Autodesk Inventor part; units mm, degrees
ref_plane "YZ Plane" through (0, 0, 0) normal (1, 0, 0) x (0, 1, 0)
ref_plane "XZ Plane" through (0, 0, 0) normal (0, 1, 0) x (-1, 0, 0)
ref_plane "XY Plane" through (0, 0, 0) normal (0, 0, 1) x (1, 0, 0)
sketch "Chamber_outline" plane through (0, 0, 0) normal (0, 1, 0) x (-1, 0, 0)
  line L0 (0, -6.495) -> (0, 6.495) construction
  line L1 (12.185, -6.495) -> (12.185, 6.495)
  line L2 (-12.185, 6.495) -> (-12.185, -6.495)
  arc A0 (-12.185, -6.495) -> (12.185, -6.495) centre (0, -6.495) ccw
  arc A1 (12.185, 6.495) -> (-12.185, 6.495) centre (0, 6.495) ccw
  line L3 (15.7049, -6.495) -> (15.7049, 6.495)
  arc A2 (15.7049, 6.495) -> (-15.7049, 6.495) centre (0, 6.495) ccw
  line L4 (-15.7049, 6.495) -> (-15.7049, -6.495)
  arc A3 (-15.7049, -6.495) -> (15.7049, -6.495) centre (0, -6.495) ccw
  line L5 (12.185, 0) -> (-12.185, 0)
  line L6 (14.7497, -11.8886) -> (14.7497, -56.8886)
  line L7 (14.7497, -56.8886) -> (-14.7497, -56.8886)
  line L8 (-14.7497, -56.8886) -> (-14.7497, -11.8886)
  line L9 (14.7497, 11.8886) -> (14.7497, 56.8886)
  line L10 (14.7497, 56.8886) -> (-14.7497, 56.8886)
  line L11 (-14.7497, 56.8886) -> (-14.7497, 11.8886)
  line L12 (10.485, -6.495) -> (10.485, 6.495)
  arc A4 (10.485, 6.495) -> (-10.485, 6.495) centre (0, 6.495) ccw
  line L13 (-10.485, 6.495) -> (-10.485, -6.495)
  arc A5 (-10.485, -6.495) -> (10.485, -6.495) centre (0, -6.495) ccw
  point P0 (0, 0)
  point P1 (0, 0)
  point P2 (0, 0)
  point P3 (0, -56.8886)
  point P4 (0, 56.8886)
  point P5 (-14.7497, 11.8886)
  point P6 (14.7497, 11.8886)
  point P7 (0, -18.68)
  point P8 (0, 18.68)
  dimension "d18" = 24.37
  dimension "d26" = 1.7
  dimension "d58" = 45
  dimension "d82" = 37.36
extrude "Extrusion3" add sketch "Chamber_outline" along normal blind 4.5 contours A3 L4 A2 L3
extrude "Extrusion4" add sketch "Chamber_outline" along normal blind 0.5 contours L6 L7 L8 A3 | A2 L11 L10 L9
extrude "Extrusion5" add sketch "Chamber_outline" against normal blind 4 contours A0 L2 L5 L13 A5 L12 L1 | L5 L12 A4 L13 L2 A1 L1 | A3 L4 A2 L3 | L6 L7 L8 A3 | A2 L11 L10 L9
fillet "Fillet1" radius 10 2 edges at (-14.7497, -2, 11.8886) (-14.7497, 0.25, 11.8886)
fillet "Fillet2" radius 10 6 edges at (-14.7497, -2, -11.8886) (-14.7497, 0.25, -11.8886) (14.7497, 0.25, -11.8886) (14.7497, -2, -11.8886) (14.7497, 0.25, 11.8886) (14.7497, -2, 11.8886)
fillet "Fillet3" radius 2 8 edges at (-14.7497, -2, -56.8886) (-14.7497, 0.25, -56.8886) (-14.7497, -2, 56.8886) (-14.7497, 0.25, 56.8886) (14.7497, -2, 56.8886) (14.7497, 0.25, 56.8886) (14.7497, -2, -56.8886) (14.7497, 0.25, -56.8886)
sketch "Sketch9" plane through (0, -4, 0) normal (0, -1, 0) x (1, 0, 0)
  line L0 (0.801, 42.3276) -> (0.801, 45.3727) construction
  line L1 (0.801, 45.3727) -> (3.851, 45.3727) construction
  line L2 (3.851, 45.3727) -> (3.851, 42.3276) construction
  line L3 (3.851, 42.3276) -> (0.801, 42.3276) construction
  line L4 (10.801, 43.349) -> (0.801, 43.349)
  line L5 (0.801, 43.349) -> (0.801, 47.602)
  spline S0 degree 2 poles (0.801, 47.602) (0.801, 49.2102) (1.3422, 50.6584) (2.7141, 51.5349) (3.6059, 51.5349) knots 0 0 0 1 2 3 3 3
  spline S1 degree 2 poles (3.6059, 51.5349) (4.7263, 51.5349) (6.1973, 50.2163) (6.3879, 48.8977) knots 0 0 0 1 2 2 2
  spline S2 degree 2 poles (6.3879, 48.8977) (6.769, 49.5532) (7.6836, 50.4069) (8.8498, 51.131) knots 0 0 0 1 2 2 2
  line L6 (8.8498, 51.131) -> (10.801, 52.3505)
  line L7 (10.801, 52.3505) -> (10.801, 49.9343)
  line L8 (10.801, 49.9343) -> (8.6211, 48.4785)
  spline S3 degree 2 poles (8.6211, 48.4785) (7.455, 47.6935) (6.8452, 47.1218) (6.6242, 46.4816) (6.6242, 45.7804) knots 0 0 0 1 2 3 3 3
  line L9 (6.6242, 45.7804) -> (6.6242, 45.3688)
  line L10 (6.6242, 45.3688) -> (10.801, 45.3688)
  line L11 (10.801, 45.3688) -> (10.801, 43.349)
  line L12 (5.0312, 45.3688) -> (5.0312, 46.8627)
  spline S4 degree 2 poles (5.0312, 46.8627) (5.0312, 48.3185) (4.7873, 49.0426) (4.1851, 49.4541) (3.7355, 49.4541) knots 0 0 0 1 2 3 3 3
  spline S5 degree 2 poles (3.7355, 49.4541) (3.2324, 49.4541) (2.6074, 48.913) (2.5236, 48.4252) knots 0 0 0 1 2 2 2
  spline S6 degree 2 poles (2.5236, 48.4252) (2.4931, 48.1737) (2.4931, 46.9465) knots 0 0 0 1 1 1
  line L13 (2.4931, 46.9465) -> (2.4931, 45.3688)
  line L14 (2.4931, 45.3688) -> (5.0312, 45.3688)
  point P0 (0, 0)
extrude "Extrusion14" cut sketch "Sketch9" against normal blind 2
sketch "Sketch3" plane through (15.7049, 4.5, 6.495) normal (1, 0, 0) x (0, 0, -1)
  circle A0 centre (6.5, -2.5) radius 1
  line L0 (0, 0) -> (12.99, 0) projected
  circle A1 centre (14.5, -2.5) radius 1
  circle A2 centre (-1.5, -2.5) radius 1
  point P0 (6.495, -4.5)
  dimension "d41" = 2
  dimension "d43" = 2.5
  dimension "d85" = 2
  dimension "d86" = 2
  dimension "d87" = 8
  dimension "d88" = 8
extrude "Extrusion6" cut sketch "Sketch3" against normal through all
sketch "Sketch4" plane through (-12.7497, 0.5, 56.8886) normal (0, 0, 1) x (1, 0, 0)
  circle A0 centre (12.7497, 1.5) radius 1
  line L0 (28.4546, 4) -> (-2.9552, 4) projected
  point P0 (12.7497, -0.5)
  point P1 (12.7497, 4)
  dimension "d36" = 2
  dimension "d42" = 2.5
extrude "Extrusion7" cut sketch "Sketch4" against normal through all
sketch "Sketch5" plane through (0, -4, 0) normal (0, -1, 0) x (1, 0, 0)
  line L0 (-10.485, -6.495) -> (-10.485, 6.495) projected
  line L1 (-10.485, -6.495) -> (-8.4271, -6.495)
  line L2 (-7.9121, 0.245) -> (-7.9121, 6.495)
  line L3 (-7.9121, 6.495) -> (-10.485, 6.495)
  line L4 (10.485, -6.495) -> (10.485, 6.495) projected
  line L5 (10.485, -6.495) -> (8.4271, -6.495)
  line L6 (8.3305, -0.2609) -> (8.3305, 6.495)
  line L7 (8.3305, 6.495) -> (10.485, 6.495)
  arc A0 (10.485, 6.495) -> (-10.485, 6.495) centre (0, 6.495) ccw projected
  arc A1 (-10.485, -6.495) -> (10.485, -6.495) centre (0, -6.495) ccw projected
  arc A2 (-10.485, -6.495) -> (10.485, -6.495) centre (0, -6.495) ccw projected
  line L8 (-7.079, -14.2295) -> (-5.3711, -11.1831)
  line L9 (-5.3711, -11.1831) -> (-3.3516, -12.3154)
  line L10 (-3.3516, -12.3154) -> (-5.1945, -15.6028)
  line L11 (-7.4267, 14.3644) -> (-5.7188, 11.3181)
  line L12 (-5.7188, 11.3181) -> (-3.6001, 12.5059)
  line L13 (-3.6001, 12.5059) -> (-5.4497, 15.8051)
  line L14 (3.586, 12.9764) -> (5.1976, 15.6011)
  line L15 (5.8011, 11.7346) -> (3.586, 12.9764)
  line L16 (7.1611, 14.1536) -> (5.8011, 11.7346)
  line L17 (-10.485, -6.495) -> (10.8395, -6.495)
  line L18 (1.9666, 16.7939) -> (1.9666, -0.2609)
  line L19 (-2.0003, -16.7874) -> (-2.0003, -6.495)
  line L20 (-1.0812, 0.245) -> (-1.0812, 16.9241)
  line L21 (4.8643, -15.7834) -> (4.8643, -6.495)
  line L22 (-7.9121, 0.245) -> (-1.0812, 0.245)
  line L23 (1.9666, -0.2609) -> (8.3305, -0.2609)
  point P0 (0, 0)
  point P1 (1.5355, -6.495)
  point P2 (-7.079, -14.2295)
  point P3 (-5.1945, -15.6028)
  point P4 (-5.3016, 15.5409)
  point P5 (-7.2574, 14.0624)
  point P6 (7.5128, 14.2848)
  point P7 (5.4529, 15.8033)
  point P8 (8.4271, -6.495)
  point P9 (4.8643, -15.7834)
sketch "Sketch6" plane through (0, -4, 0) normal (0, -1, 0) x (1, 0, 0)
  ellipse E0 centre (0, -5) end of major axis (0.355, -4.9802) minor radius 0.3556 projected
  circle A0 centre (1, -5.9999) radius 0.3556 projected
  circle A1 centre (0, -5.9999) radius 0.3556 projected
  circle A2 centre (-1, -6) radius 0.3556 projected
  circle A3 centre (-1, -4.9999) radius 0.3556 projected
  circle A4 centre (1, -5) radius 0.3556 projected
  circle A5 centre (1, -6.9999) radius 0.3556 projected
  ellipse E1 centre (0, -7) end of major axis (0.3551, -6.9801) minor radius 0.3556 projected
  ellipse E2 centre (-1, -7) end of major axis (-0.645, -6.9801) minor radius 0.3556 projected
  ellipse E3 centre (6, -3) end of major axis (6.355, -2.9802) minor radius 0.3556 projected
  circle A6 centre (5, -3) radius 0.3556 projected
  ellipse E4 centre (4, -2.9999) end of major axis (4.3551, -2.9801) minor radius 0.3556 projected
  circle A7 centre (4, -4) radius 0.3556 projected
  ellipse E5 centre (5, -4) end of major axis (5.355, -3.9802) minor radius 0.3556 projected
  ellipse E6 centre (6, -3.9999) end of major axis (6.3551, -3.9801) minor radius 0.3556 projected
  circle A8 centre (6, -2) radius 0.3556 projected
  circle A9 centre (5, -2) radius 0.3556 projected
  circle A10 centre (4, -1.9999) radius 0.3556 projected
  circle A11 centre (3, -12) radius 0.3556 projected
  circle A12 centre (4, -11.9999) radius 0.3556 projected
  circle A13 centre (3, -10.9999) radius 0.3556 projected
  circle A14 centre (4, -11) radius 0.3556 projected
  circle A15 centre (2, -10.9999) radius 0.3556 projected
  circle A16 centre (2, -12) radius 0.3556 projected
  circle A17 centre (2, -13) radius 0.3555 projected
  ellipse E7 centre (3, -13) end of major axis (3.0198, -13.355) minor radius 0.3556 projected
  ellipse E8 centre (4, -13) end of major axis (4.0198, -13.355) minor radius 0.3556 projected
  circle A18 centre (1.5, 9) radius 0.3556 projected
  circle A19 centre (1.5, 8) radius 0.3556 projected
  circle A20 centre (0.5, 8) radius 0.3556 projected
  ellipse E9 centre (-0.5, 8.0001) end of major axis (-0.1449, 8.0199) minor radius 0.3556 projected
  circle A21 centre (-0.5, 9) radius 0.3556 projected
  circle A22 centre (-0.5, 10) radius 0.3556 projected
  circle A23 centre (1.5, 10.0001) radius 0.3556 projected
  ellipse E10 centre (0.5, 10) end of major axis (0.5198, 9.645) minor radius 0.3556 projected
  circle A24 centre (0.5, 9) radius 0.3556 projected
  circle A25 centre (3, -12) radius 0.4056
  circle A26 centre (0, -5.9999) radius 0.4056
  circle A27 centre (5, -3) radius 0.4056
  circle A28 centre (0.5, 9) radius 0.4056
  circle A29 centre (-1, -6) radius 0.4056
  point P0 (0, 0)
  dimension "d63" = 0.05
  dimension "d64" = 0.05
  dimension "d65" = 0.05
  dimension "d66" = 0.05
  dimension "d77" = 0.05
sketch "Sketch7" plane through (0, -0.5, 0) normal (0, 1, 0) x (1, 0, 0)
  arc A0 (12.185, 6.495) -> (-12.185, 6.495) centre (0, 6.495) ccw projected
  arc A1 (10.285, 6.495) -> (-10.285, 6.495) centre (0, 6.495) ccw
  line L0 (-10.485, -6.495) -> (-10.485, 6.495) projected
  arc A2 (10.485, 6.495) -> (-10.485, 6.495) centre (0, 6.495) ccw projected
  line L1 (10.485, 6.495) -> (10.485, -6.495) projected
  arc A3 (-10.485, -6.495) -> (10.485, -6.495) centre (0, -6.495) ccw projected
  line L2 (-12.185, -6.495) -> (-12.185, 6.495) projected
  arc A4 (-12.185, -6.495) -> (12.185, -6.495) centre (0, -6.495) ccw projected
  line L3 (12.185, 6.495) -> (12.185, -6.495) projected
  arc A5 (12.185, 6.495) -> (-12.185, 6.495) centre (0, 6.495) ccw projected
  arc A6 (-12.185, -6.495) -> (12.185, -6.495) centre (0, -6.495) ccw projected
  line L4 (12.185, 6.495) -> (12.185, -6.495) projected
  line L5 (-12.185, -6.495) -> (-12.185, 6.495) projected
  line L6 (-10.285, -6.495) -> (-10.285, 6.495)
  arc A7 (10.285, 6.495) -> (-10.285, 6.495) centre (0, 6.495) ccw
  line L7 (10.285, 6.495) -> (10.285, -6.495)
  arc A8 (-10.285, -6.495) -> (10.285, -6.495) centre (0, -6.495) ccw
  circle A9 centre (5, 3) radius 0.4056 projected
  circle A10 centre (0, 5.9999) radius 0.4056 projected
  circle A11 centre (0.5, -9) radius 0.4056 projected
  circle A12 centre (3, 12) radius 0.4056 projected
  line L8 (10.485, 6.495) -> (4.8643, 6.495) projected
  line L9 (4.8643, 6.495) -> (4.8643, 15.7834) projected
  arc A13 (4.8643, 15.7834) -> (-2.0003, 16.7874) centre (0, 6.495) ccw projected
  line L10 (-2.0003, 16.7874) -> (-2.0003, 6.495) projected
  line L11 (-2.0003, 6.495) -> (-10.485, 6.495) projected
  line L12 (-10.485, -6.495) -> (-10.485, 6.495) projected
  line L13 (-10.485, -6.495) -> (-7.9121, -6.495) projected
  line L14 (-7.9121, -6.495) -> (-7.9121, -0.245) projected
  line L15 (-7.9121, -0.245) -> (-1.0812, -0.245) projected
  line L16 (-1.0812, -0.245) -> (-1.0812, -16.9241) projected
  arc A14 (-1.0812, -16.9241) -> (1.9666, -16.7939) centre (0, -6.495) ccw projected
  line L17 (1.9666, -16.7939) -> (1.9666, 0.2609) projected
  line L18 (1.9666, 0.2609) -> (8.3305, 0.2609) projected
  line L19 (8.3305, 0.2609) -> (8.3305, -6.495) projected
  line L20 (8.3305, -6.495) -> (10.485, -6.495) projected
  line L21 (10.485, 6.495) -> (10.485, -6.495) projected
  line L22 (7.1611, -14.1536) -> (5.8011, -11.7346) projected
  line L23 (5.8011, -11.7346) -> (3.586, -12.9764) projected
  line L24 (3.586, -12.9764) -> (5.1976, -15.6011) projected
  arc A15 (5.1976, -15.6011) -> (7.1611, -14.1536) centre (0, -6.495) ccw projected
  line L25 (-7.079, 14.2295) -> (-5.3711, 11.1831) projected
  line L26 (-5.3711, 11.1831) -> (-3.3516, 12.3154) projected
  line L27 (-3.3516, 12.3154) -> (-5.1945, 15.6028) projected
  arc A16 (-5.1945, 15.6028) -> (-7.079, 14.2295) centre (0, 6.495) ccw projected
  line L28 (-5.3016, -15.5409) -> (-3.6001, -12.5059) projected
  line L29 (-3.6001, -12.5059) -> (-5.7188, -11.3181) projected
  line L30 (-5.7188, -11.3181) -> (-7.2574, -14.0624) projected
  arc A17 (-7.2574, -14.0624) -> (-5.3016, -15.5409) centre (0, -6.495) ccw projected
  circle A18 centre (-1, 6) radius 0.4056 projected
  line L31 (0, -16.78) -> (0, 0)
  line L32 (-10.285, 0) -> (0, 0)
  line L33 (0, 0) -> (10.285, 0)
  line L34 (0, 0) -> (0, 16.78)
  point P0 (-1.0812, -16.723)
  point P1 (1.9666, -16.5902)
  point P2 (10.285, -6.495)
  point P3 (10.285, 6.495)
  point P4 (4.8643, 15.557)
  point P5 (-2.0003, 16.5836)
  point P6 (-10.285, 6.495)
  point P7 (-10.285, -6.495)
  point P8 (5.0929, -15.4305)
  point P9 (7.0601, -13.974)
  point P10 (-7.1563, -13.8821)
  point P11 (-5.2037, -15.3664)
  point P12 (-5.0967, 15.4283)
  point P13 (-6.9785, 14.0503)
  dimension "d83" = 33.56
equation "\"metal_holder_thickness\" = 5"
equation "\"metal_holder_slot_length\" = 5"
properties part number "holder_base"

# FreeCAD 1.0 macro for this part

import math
import FreeCAD as App
import Part
import Sketcher

V = App.Vector
Q = App.Units.Quantity


def edges_at(feature, points):
    """Names of the edges that pass closest to the given points."""
    edges = feature.Shape.Edges
    near = lambda p: min(range(len(edges)), key=lambda i: edges[i].distToShape(Part.Vertex(*p))[0])
    return sorted({f"Edge{near(p) + 1}" for p in points})

doc = App.newDocument("Part")
params = doc.addObject("Spreadsheet::Sheet", "Params")
for row, (alias, value) in enumerate([
    ("sketch1_height", "12.99 mm"),
    ("pad1_length", "4.5 mm"),
    ("sketch2_height", "45 mm"),
    ("pad2_length", "0.5 mm"),
    ("sketch3_height", "45 mm"),
    ("sketch3_height2", "12.99 mm"),
    ("pad3_length", "4 mm"),
    ("fillet_radius", "10 mm"),
    ("fillet2_radius", "10 mm"),
    ("fillet3_radius", "2 mm"),
    ("sketch4_width", "10 mm"),
    ("pocket1_length", "2 mm"),
    ("sketch5_diameter", "2 mm"),
    ("sketch6_diameter", "2 mm"),
], start=1):
    params.set(f"A{row}", alias)
    params.set(f"B{row}", "=" + value)
    params.setAlias(f"B{row}", alias)

body = doc.addObject("PartDesign::Body", "Body")

sketch1 = body.newObject("Sketcher::SketchObject", "Sketch")
sketch1.AttachmentSupport = (doc.getObject("XZ_Plane"), [""])
sketch1.MapMode = "FlatFace"
sketch1.addGeometry(Part.ArcOfCircle(Part.Circle(V(0, -6.495, 0), V(0, 0, 1), 15.7049), math.radians(180), math.radians(360)), False)
sketch1.addGeometry(Part.LineSegment(V(-15.7049, -6.495, 0), V(-15.7049, 6.495, 0)), False)
sketch1.addGeometry(Part.ArcOfCircle(Part.Circle(V(0, 6.495, 0), V(0, 0, 1), 15.7049), math.radians(0), math.radians(180)), False)
sketch1.addGeometry(Part.LineSegment(V(15.7049, 6.495, 0), V(15.7049, -6.495, 0)), False)
sketch1.addGeometry(Part.LineSegment(V(-12.185, 6.495, 0), V(-12.185, -6.495, 0)), False)
sketch1.addGeometry(Part.ArcOfCircle(Part.Circle(V(0, -6.495, 0), V(0, 0, 1), 12.185), math.radians(180), math.radians(360)), False)
sketch1.addGeometry(Part.LineSegment(V(12.185, -6.495, 0), V(12.185, 6.495, 0)), False)
sketch1.addGeometry(Part.ArcOfCircle(Part.Circle(V(0, 6.495, 0), V(0, 0, 1), 12.185), math.radians(0), math.radians(180)), False)
sketch1.addConstraint(Sketcher.Constraint("Tangent", 0, 1, 1, 1))
sketch1.addConstraint(Sketcher.Constraint("Tangent", 1, 2, 2, 2))
sketch1.addConstraint(Sketcher.Constraint("Tangent", 2, 1, 3, 1))
sketch1.addConstraint(Sketcher.Constraint("Tangent", 3, 2, 0, 2))
sketch1.addConstraint(Sketcher.Constraint("Tangent", 4, 2, 5, 1))
sketch1.addConstraint(Sketcher.Constraint("Tangent", 5, 2, 6, 1))
sketch1.addConstraint(Sketcher.Constraint("Tangent", 6, 2, 7, 1))
sketch1.addConstraint(Sketcher.Constraint("Tangent", 7, 2, 4, 1))
sketch1.addConstraint(Sketcher.Constraint("Vertical", 1))
sketch1.addConstraint(Sketcher.Constraint("Vertical", 3))
sketch1.addConstraint(Sketcher.Constraint("Vertical", 4))
sketch1.addConstraint(Sketcher.Constraint("Vertical", 6))
sketch1.addConstraint(Sketcher.Constraint("Coincident", 5, 3, 0, 3))
sketch1.addConstraint(Sketcher.Constraint("Symmetric", 0, 3, 2, 3, -1, 1))
sketch1.addConstraint(Sketcher.Constraint("Horizontal", 7, 3, 1, 2))
sketch1.addConstraint(Sketcher.Constraint("Radius", 5, Q("12.185 mm")))
sketch1.addConstraint(Sketcher.Constraint("Radius", 0, Q("15.705 mm")))
sketch1.addConstraint(Sketcher.Constraint("DistanceY", 1, 1, 1, 2, Q("12.99 mm")))
sketch1.setExpression("Constraints[17]", "Params.sketch1_height")
pad1 = body.newObject("PartDesign::Pad", "Pad")
pad1.Profile = sketch1
pad1.setExpression("Length", "Params.pad1_length")
pad1.Reversed = True

sketch2 = body.newObject("Sketcher::SketchObject", "Sketch001")
sketch2.AttachmentSupport = (doc.getObject("XZ_Plane"), [""])
sketch2.MapMode = "FlatFace"
sketch2.addGeometry(Part.LineSegment(V(-14.7497, -56.8886, 0), V(-14.7497, -11.8886, 0)), False)
sketch2.addGeometry(Part.ArcOfCircle(Part.Circle(V(0, -6.495, 0), V(0, 0, 1), 15.7049), math.radians(-159.913785), math.radians(-20.086215)), False)
sketch2.addGeometry(Part.LineSegment(V(14.7497, -11.8886, 0), V(14.7497, -56.8886, 0)), False)
sketch2.addGeometry(Part.LineSegment(V(14.7497, -56.8886, 0), V(-14.7497, -56.8886, 0)), False)
sketch2.addGeometry(Part.ArcOfCircle(Part.Circle(V(0, 6.495, 0), V(0, 0, 1), 15.7049), math.radians(20.086215), math.radians(159.913785)), False)
sketch2.addGeometry(Part.LineSegment(V(-14.7497, 11.8886, 0), V(-14.7497, 56.8886, 0)), False)
sketch2.addGeometry(Part.LineSegment(V(-14.7497, 56.8886, 0), V(14.7497, 56.8886, 0)), False)
sketch2.addGeometry(Part.LineSegment(V(14.7497, 56.8886, 0), V(14.7497, 11.8886, 0)), False)
sketch2.addConstraint(Sketcher.Constraint("Coincident", 0, 2, 1, 1))
sketch2.addConstraint(Sketcher.Constraint("Coincident", 1, 2, 2, 1))
sketch2.addConstraint(Sketcher.Constraint("Coincident", 2, 2, 3, 1))
sketch2.addConstraint(Sketcher.Constraint("Coincident", 3, 2, 0, 1))
sketch2.addConstraint(Sketcher.Constraint("Coincident", 4, 2, 5, 1))
sketch2.addConstraint(Sketcher.Constraint("Coincident", 5, 2, 6, 1))
sketch2.addConstraint(Sketcher.Constraint("Coincident", 6, 2, 7, 1))
sketch2.addConstraint(Sketcher.Constraint("Coincident", 7, 2, 4, 1))
sketch2.addConstraint(Sketcher.Constraint("Vertical", 0))
sketch2.addConstraint(Sketcher.Constraint("Vertical", 2))
sketch2.addConstraint(Sketcher.Constraint("Horizontal", 3))
sketch2.addConstraint(Sketcher.Constraint("Vertical", 5))
sketch2.addConstraint(Sketcher.Constraint("Horizontal", 6))
sketch2.addConstraint(Sketcher.Constraint("Vertical", 7))
sketch2.addConstraint(Sketcher.Constraint("Equal", 1, 4))
sketch2.addConstraint(Sketcher.Constraint("Symmetric", 1, 3, 4, 3, -1, 1))
sketch2.addConstraint(Sketcher.Constraint("Symmetric", 2, 2, 5, 2, -1, 1))
sketch2.addConstraint(Sketcher.Constraint("Symmetric", 0, 2, 1, 2, -2))
sketch2.addConstraint(Sketcher.Constraint("Horizontal", 4, 2, 7, 2))
sketch2.addConstraint(Sketcher.Constraint("DistanceY", 0, 1, 0, 2, Q("45 mm")))
sketch2.addConstraint(Sketcher.Constraint("Radius", 1, Q("15.705 mm")))
sketch2.addConstraint(Sketcher.Constraint("DistanceY", 1, 3, 4, 3, Q("12.99 mm")))
sketch2.addConstraint(Sketcher.Constraint("DistanceX", 3, 2, 3, 1, Q("29.4994 mm")))
sketch2.setExpression("Constraints[19]", "Params.sketch2_height")
pad2 = body.newObject("PartDesign::Pad", "Pad001")
pad2.Profile = sketch2
pad2.setExpression("Length", "Params.pad2_length")
pad2.Reversed = True

sketch3 = body.newObject("Sketcher::SketchObject", "Sketch002")
sketch3.AttachmentSupport = (doc.getObject("XZ_Plane"), [""])
sketch3.MapMode = "FlatFace"
sketch3.addGeometry(Part.ArcOfCircle(Part.Circle(V(0, -6.495, 0), V(0, 0, 1), 15.7049), math.radians(180), math.radians(200.086215)), False)
sketch3.addGeometry(Part.LineSegment(V(-15.7049, -6.495, 0), V(-15.7049, 6.495, 0)), False)
sketch3.addGeometry(Part.ArcOfCircle(Part.Circle(V(0, 6.495, 0), V(0, 0, 1), 15.7049), math.radians(159.913785), math.radians(180)), False)
sketch3.addGeometry(Part.LineSegment(V(-14.7497, 11.8886, 0), V(-14.7497, 56.8886, 0)), False)
sketch3.addGeometry(Part.LineSegment(V(-14.7497, 56.8886, 0), V(14.7497, 56.8886, 0)), False)
sketch3.addGeometry(Part.LineSegment(V(14.7497, 56.8886, 0), V(14.7497, 11.8886, 0)), False)
sketch3.addGeometry(Part.ArcOfCircle(Part.Circle(V(0, 6.495, 0), V(0, 0, 1), 15.7049), math.radians(0), math.radians(20.086215)), False)
sketch3.addGeometry(Part.LineSegment(V(15.7049, 6.495, 0), V(15.7049, -6.495, 0)), False)
sketch3.addGeometry(Part.ArcOfCircle(Part.Circle(V(0, -6.495, 0), V(0, 0, 1), 15.7049), math.radians(-20.086215), math.radians(0)), False)
sketch3.addGeometry(Part.LineSegment(V(14.7497, -11.8886, 0), V(14.7497, -56.8886, 0)), False)
sketch3.addGeometry(Part.LineSegment(V(14.7497, -56.8886, 0), V(-14.7497, -56.8886, 0)), False)
sketch3.addGeometry(Part.LineSegment(V(-14.7497, -56.8886, 0), V(-14.7497, -11.8886, 0)), False)
sketch3.addGeometry(Part.LineSegment(V(10.485, -6.495, 0), V(10.485, 6.495, 0)), False)
sketch3.addGeometry(Part.ArcOfCircle(Part.Circle(V(0, 6.495, 0), V(0, 0, 1), 10.485), math.radians(0), math.radians(180)), False)
sketch3.addGeometry(Part.LineSegment(V(-10.485, 6.495, 0), V(-10.485, -6.495, 0)), False)
sketch3.addGeometry(Part.ArcOfCircle(Part.Circle(V(0, -6.495, 0), V(0, 0, 1), 10.485), math.radians(180), math.radians(360)), False)
sketch3.addConstraint(Sketcher.Constraint("Tangent", 0, 1, 1, 1))
sketch3.addConstraint(Sketcher.Constraint("Tangent", 1, 2, 2, 2))
sketch3.addConstraint(Sketcher.Constraint("Coincident", 2, 1, 3, 1))
sketch3.addConstraint(Sketcher.Constraint("Coincident", 3, 2, 4, 1))
sketch3.addConstraint(Sketcher.Constraint("Coincident", 4, 2, 5, 1))
sketch3.addConstraint(Sketcher.Constraint("Coincident", 5, 2, 6, 2))
sketch3.addConstraint(Sketcher.Constraint("Tangent", 6, 1, 7, 1))
sketch3.addConstraint(Sketcher.Constraint("Tangent", 7, 2, 8, 2))
sketch3.addConstraint(Sketcher.Constraint("Coincident", 8, 1, 9, 1))
sketch3.addConstraint(Sketcher.Constraint("Coincident", 9, 2, 10, 1))
sketch3.addConstraint(Sketcher.Constraint("Coincident", 10, 2, 11, 1))
sketch3.addConstraint(Sketcher.Constraint("Coincident", 11, 2, 0, 2))
sketch3.addConstraint(Sketcher.Constraint("Tangent", 12, 2, 13, 1))
sketch3.addConstraint(Sketcher.Constraint("Tangent", 13, 2, 14, 1))
sketch3.addConstraint(Sketcher.Constraint("Tangent", 14, 2, 15, 1))
sketch3.addConstraint(Sketcher.Constraint("Tangent", 15, 2, 12, 1))
sketch3.addConstraint(Sketcher.Constraint("Vertical", 1))
sketch3.addConstraint(Sketcher.Constraint("Vertical", 3))
sketch3.addConstraint(Sketcher.Constraint("Horizontal", 4))
sketch3.addConstraint(Sketcher.Constraint("Vertical", 5))
sketch3.addConstraint(Sketcher.Constraint("Vertical", 7))
sketch3.addConstraint(Sketcher.Constraint("Vertical", 9))
sketch3.addConstraint(Sketcher.Constraint("Horizontal", 10))
sketch3.addConstraint(Sketcher.Constraint("Vertical", 11))
sketch3.addConstraint(Sketcher.Constraint("Vertical", 12))
sketch3.addConstraint(Sketcher.Constraint("Vertical", 14))
sketch3.addConstraint(Sketcher.Constraint("Coincident", 6, 3, 2, 3))
sketch3.addConstraint(Sketcher.Constraint("Coincident", 8, 3, 0, 3))
sketch3.addConstraint(Sketcher.Constraint("Coincident", 13, 3, 2, 3))
sketch3.addConstraint(Sketcher.Constraint("Coincident", 15, 3, 0, 3))
sketch3.addConstraint(Sketcher.Constraint("Equal", 2, 6))
sketch3.addConstraint(Sketcher.Constraint("Symmetric", 0, 3, 2, 3, -1, 1))
sketch3.addConstraint(Sketcher.Constraint("Symmetric", 3, 2, 9, 2, -1, 1))
sketch3.addConstraint(Sketcher.Constraint("Horizontal", 2, 1, 5, 2))
sketch3.addConstraint(Sketcher.Constraint("Horizontal", 8, 1, 11, 2))
sketch3.addConstraint(Sketcher.Constraint("DistanceY", 3, 1, 3, 2, Q("45 mm")))
sketch3.addConstraint(Sketcher.Constraint("Radius", 0, Q("15.705 mm")))
sketch3.addConstraint(Sketcher.Constraint("Radius", 13, Q("10.485 mm")))
sketch3.addConstraint(Sketcher.Constraint("DistanceY", 1, 1, 1, 2, Q("12.99 mm")))
sketch3.addConstraint(Sketcher.Constraint("DistanceX", 4, 1, 4, 2, Q("29.4994 mm")))
sketch3.setExpression("Constraints[35]", "Params.sketch3_height")
sketch3.setExpression("Constraints[38]", "Params.sketch3_height2")
pad3 = body.newObject("PartDesign::Pad", "Pad002")
pad3.Profile = sketch3
pad3.setExpression("Length", "Params.pad3_length")
doc.recompute()

fillet = body.newObject("PartDesign::Fillet", "Fillet")
fillet.Base = (pad3, edges_at(pad3, [(-14.75, -2, 11.889), (-14.75, 0.25, 11.889)]))
fillet.setExpression("Radius", "Params.fillet_radius")
doc.recompute()

fillet2 = body.newObject("PartDesign::Fillet", "Fillet001")
fillet2.Base = (fillet, edges_at(fillet, [
    (-14.75, -2, -11.889),
    (-14.75, 0.25, -11.889),
    (14.75, 0.25, -11.889),
    (14.75, -2, -11.889),
    (14.75, 0.25, 11.889),
    (14.75, -2, 11.889),
]))
fillet2.setExpression("Radius", "Params.fillet2_radius")
doc.recompute()

fillet3 = body.newObject("PartDesign::Fillet", "Fillet002")
fillet3.Base = (fillet2, edges_at(fillet2, [
    (-14.75, -2, -56.889),
    (-14.75, 0.25, -56.889),
    (-14.75, -2, 56.889),
    (-14.75, 0.25, 56.889),
    (14.75, -2, 56.889),
    (14.75, 0.25, 56.889),
    (14.75, -2, -56.889),
    (14.75, 0.25, -56.889),
]))
fillet3.setExpression("Radius", "Params.fillet3_radius")

sketch4 = body.newObject("Sketcher::SketchObject", "Sketch003")
sketch4.AttachmentSupport = (doc.getObject("XZ_Plane"), [""])
sketch4.MapMode = "FlatFace"
sketch4.AttachmentOffset = App.Placement(V(0, 0, 4), App.Rotation())
sketch4.addGeometry(Part.LineSegment(V(0.801, 43.349, 0), V(10.801, 43.349, 0)), False)
sketch4.addGeometry(Part.LineSegment(V(10.801, 43.349, 0), V(10.801, 45.3688, 0)), False)
sketch4.addGeometry(Part.LineSegment(V(10.801, 45.3688, 0), V(6.6242, 45.3688, 0)), False)
sketch4.addGeometry(Part.LineSegment(V(6.6242, 45.3688, 0), V(6.6242, 45.7804, 0)), False)
sketch4.addGeometry(Part.BSplineCurve([V(8.6211, 48.4785, 0), V(7.455, 47.6935, 0), V(6.8452, 47.1218, 0), V(6.6242, 46.4816, 0), V(6.6242, 45.7804, 0)], [3, 1, 1, 3], [0, 1, 2, 3], False, 2, [1, 1, 1, 1, 1], False), False)
sketch4.addGeometry(Part.LineSegment(V(8.6211, 48.4785, 0), V(10.801, 49.9343, 0)), False)
sketch4.addGeometry(Part.LineSegment(V(10.801, 49.9343, 0), V(10.801, 52.3505, 0)), False)
sketch4.addGeometry(Part.LineSegment(V(10.801, 52.3505, 0), V(8.8498, 51.131, 0)), False)
sketch4.addGeometry(Part.BSplineCurve([V(6.3879, 48.8977, 0), V(6.769, 49.5532, 0), V(7.6836, 50.4069, 0), V(8.8498, 51.131, 0)], [3, 1, 3], [0, 1, 2], False, 2, [1, 1, 1, 1], False), False)
sketch4.addGeometry(Part.BSplineCurve([V(3.6059, 51.5349, 0), V(4.7263, 51.5349, 0), V(6.1973, 50.2163, 0), V(6.3879, 48.8977, 0)], [3, 1, 3], [0, 1, 2], False, 2, [1, 1, 1, 1], False), False)
sketch4.addGeometry(Part.BSplineCurve([V(0.801, 47.602, 0), V(0.801, 49.2102, 0), V(1.3422, 50.6584, 0), V(2.7141, 51.5349, 0), V(3.6059, 51.5349, 0)], [3, 1, 1, 3], [0, 1, 2, 3], False, 2, [1, 1, 1, 1, 1], False), False)
sketch4.addGeometry(Part.LineSegment(V(0.801, 47.602, 0), V(0.801, 43.349, 0)), False)
sketch4.addGeometry(Part.LineSegment(V(5.0312, 46.8627, 0), V(5.0312, 45.3688, 0)), False)
sketch4.addGeometry(Part.LineSegment(V(5.0312, 45.3688, 0), V(2.4931, 45.3688, 0)), False)
sketch4.addGeometry(Part.LineSegment(V(2.4931, 45.3688, 0), V(2.4931, 46.9465, 0)), False)
sketch4.addGeometry(Part.BSplineCurve([V(2.5236, 48.4252, 0), V(2.4931, 48.1737, 0), V(2.4931, 46.9465, 0)], [3, 3], [0, 1], False, 2, [1, 1, 1], False), False)
sketch4.addGeometry(Part.BSplineCurve([V(3.7355, 49.4541, 0), V(3.2324, 49.4541, 0), V(2.6074, 48.913, 0), V(2.5236, 48.4252, 0)], [3, 1, 3], [0, 1, 2], False, 2, [1, 1, 1, 1], False), False)
sketch4.addGeometry(Part.BSplineCurve([V(5.0312, 46.8627, 0), V(5.0312, 48.3185, 0), V(4.7873, 49.0426, 0), V(4.1851, 49.4541, 0), V(3.7355, 49.4541, 0)], [3, 1, 1, 3], [0, 1, 2, 3], False, 2, [1, 1, 1, 1, 1], False), False)
sketch4.addConstraint(Sketcher.Constraint("Block", 4))
sketch4.addConstraint(Sketcher.Constraint("Block", 8))
sketch4.addConstraint(Sketcher.Constraint("Block", 9))
sketch4.addConstraint(Sketcher.Constraint("Block", 10))
sketch4.addConstraint(Sketcher.Constraint("Block", 15))
sketch4.addConstraint(Sketcher.Constraint("Block", 16))
sketch4.addConstraint(Sketcher.Constraint("Block", 17))
sketch4.addConstraint(Sketcher.Constraint("Coincident", 0, 2, 1, 1))
sketch4.addConstraint(Sketcher.Constraint("Coincident", 1, 2, 2, 1))
sketch4.addConstraint(Sketcher.Constraint("Coincident", 2, 2, 3, 1))
sketch4.addConstraint(Sketcher.Constraint("Coincident", 3, 2, 4, 2))
sketch4.addConstraint(Sketcher.Constraint("Coincident", 4, 1, 5, 1))
sketch4.addConstraint(Sketcher.Constraint("Coincident", 5, 2, 6, 1))
sketch4.addConstraint(Sketcher.Constraint("Coincident", 6, 2, 7, 1))
sketch4.addConstraint(Sketcher.Constraint("Coincident", 7, 2, 8, 2))
sketch4.addConstraint(Sketcher.Constraint("Coincident", 10, 1, 11, 1))
sketch4.addConstraint(Sketcher.Constraint("Coincident", 11, 2, 0, 1))
sketch4.addConstraint(Sketcher.Constraint("Coincident", 12, 2, 13, 1))
sketch4.addConstraint(Sketcher.Constraint("Coincident", 13, 2, 14, 1))
sketch4.addConstraint(Sketcher.Constraint("Coincident", 14, 2, 15, 2))
sketch4.addConstraint(Sketcher.Constraint("Coincident", 17, 1, 12, 1))
sketch4.addConstraint(Sketcher.Constraint("Horizontal", 0))
sketch4.addConstraint(Sketcher.Constraint("Vertical", 1))
sketch4.addConstraint(Sketcher.Constraint("Horizontal", 2))
sketch4.addConstraint(Sketcher.Constraint("Vertical", 3))
sketch4.addConstraint(Sketcher.Constraint("Vertical", 6))
sketch4.addConstraint(Sketcher.Constraint("Vertical", 11))
sketch4.addConstraint(Sketcher.Constraint("Vertical", 12))
sketch4.addConstraint(Sketcher.Constraint("Horizontal", 13))
sketch4.addConstraint(Sketcher.Constraint("Vertical", 14))
sketch4.addConstraint(Sketcher.Constraint("Horizontal", 2, 2, 12, 2))
sketch4.addConstraint(Sketcher.Constraint("Vertical", 1, 2, 5, 2))
sketch4.addConstraint(Sketcher.Constraint("DistanceX", 0, 1, 0, 2, Q("10 mm")))
sketch4.addConstraint(Sketcher.Constraint("DistanceY", 11, 2, 11, 1, Q("4.253 mm")))
sketch4.addConstraint(Sketcher.Constraint("DistanceY", 12, 2, 12, 1, Q("1.494 mm")))
sketch4.addConstraint(Sketcher.Constraint("DistanceY", 3, 2, 6, 2, Q("6.57 mm")))
sketch4.addConstraint(Sketcher.Constraint("DistanceY", 6, 1, 6, 2, Q("2.4162 mm")))
sketch4.setExpression("Constraints[32]", "Params.sketch4_width")
pocket1 = body.newObject("PartDesign::Pocket", "Pocket")
pocket1.Profile = sketch4
pocket1.setExpression("Length", "Params.pocket1_length")

sketch5 = body.newObject("Sketcher::SketchObject", "Sketch004")
sketch5.AttachmentSupport = (doc.getObject("YZ_Plane"), [""])
sketch5.MapMode = "FlatFace"
sketch5.AttachmentOffset = App.Placement(V(0, 0, 15.7049), App.Rotation())
sketch5.addGeometry(Part.Circle(V(2, -0.005, 0), V(0, 0, 1), 1), False)
sketch5.addGeometry(Part.Circle(V(2, -8.005, 0), V(0, 0, 1), 1), False)
sketch5.addGeometry(Part.Circle(V(2, 7.995, 0), V(0, 0, 1), 1), False)
sketch5.addConstraint(Sketcher.Constraint("Equal", 0, 1))
sketch5.addConstraint(Sketcher.Constraint("Equal", 1, 2))
sketch5.addConstraint(Sketcher.Constraint("Vertical", 0, 3, 1, 3))
sketch5.addConstraint(Sketcher.Constraint("Vertical", 1, 3, 2, 3))
sketch5.addConstraint(Sketcher.Constraint("Diameter", 0, Q("2 mm")))
sketch5.addConstraint(Sketcher.Constraint("DistanceX", -1, 1, 0, 3, Q("2 mm")))
sketch5.addConstraint(Sketcher.Constraint("DistanceY", 1, 3, 0, 3, Q("8 mm")))
sketch5.addConstraint(Sketcher.Constraint("DistanceY", 0, 3, 2, 3, Q("8 mm")))
sketch5.addConstraint(Sketcher.Constraint("DistanceY", 0, 3, -1, 1, Q("0.005 mm")))
sketch5.setExpression("Constraints[4]", "Params.sketch5_diameter")
pocket2 = body.newObject("PartDesign::Pocket", "Pocket001")
pocket2.Profile = sketch5
pocket2.Type = "ThroughAll"

sketch6 = body.newObject("Sketcher::SketchObject", "Sketch005")
sketch6.AttachmentSupport = (doc.getObject("XY_Plane"), [""])
sketch6.MapMode = "FlatFace"
sketch6.AttachmentOffset = App.Placement(V(0, 0, 56.8886), App.Rotation())
sketch6.addGeometry(Part.Circle(V(0, 2, 0), V(0, 0, 1), 1), False)
sketch6.addConstraint(Sketcher.Constraint("PointOnObject", 0, 3, -2))
sketch6.addConstraint(Sketcher.Constraint("Diameter", 0, Q("2 mm")))
sketch6.addConstraint(Sketcher.Constraint("DistanceY", -1, 1, 0, 3, Q("2 mm")))
sketch6.setExpression("Constraints[1]", "Params.sketch6_diameter")
pocket3 = body.newObject("PartDesign::Pocket", "Pocket002")
pocket3.Profile = sketch6
pocket3.Type = "ThroughAll"

doc.recompute()
